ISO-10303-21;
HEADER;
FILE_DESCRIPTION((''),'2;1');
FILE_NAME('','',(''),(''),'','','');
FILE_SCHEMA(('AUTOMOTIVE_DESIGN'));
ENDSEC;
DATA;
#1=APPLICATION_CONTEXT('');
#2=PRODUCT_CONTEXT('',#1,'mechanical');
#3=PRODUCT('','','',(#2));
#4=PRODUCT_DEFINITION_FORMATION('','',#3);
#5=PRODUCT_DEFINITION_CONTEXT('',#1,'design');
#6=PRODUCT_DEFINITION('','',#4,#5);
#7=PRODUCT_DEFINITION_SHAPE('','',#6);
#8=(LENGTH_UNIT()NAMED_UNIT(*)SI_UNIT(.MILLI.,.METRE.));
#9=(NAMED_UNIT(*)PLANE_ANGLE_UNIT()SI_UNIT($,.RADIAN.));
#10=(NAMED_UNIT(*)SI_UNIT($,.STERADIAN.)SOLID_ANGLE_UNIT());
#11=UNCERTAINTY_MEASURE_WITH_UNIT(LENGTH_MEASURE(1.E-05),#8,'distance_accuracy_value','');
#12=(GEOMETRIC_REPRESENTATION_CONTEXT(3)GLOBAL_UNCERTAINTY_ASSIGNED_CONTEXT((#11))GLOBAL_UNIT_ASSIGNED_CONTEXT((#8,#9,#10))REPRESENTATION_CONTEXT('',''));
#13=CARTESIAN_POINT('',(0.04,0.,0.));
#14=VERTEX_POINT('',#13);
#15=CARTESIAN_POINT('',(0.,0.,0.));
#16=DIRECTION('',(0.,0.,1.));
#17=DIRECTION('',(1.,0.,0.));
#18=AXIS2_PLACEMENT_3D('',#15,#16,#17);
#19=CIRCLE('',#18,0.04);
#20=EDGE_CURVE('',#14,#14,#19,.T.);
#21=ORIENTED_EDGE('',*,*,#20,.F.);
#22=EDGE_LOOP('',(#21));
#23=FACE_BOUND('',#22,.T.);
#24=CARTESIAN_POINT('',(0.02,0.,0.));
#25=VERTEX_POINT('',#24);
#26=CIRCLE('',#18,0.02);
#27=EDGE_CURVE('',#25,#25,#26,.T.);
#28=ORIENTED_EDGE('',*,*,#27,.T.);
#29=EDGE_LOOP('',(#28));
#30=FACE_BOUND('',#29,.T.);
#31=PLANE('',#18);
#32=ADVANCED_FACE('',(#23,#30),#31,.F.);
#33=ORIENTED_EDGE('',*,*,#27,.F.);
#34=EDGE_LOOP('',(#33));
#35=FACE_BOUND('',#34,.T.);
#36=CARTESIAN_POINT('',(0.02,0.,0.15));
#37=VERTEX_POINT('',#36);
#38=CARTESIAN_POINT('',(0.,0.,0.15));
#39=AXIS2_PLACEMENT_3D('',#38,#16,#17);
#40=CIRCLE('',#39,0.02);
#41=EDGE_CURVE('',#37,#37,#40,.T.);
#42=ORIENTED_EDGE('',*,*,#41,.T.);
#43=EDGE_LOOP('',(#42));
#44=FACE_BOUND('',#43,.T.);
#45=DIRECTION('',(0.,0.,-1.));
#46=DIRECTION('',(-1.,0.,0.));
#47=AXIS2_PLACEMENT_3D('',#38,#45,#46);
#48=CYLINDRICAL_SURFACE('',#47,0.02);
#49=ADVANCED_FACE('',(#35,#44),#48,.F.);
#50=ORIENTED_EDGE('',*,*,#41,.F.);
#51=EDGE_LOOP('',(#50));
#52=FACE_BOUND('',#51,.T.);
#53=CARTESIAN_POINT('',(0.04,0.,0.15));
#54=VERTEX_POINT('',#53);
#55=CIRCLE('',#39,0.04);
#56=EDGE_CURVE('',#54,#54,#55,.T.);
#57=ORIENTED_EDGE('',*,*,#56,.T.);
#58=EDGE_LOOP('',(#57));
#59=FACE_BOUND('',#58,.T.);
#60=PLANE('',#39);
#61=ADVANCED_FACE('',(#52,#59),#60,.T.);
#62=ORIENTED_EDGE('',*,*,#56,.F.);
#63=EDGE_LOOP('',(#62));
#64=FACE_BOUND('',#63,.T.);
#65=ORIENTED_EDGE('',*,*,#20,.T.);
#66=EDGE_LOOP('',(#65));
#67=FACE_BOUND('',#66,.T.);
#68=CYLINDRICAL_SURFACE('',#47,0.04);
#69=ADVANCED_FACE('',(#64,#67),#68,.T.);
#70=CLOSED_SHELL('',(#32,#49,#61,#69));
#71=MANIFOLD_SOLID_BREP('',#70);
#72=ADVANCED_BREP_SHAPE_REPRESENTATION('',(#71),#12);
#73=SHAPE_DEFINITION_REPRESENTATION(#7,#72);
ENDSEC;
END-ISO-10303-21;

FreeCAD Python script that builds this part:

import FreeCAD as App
import Part
import Sketcher
Q = App.Units.Quantity

doc = App.newDocument("Part")
body = doc.addObject("PartDesign::Body", "Body")

# Sketch on XY plane
sketch1 = body.newObject("Sketcher::SketchObject", "Sketch")
sketch1.AttachmentSupport = (doc.getObject("XY_Plane"), [""])
sketch1.MapMode = "FlatFace"
sketch1.addGeometry([
    Part.Circle(App.Vector(0, 0, 0), App.Vector(0, 0, 1), 0.04),
    Part.Circle(App.Vector(0, 0, 0), App.Vector(0, 0, 1), 0.02),
], False)
sketch1.addConstraint([
    Sketcher.Constraint("Coincident", 0, 3, -1, 1),
    Sketcher.Constraint("Coincident", 1, 3, -1, 1),
    Sketcher.Constraint("Diameter", 0, Q("0.08 mm")),
    Sketcher.Constraint("Diameter", 1, Q("0.04 mm")),
])
pad1 = body.newObject("PartDesign::Pad", "Pad")
pad1.Profile = sketch1
pad1.Length = 0.15

doc.recompute()
